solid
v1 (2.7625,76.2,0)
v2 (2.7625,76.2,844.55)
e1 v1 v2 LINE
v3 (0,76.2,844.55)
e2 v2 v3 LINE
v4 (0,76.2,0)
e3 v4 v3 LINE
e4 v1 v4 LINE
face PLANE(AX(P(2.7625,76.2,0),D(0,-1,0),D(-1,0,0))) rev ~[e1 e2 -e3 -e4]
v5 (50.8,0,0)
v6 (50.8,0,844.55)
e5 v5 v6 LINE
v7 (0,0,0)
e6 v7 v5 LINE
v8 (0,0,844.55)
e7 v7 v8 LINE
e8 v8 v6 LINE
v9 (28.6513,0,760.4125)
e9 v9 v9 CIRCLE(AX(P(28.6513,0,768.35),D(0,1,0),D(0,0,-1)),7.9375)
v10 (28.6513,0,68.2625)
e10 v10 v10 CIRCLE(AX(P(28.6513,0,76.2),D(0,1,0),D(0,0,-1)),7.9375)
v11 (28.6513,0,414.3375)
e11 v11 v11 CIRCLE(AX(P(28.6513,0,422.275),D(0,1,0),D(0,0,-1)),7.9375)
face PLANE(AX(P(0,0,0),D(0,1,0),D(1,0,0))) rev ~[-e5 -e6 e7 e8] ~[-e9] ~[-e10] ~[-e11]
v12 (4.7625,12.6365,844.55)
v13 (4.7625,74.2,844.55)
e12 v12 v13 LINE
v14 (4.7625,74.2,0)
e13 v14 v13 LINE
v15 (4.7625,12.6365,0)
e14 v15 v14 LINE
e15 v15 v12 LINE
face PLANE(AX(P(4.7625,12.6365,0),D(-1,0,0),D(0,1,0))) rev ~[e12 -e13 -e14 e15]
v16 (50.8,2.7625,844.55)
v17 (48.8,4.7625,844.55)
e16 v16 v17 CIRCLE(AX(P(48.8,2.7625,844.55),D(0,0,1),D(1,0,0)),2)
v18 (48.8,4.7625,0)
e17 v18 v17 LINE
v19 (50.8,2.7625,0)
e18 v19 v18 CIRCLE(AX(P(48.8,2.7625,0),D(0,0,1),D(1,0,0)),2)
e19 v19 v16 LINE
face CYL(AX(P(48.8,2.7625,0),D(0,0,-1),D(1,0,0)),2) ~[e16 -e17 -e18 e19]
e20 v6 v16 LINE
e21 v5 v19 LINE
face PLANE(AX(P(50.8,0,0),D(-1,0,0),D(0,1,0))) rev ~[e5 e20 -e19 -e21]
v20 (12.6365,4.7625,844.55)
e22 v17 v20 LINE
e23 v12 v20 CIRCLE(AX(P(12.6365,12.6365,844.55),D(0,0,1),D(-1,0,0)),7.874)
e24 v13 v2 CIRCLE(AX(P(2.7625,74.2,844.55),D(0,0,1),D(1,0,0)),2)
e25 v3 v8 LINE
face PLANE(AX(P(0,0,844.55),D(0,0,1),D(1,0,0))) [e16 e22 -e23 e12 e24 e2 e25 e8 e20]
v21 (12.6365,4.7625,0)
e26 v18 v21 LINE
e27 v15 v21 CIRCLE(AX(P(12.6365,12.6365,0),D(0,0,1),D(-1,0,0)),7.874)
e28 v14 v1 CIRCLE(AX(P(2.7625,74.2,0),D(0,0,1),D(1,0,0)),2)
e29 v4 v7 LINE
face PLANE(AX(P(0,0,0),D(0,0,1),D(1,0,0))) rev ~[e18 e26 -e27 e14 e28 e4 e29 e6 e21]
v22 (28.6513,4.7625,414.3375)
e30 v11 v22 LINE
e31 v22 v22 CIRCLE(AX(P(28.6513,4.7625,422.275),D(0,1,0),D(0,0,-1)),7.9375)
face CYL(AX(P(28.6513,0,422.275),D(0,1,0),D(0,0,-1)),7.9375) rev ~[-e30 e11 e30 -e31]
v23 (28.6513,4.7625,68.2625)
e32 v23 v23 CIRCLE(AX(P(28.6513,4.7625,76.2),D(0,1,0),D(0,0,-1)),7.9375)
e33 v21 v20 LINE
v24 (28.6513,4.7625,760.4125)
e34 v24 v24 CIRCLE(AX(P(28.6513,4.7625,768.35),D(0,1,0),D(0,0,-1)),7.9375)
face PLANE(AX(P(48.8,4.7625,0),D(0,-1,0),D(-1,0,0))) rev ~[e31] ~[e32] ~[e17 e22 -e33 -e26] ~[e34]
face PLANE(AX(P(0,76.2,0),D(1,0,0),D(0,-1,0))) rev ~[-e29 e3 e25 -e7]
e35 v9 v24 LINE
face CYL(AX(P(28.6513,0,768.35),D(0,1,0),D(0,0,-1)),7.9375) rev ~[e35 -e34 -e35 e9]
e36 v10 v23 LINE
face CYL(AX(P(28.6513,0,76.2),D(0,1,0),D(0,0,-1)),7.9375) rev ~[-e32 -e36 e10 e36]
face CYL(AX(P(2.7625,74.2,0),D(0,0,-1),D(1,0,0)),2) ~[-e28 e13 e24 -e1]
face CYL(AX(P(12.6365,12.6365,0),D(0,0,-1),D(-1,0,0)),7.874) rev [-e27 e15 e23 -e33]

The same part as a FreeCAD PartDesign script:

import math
import FreeCAD as App
import Part
import Sketcher
Q = App.Units.Quantity

doc = App.newDocument("Part")
params = doc.addObject("Spreadsheet::Sheet", "Params")
for row, (alias, value) in enumerate([
    ("sketch1_width", "2 in"),
    ("sketch1_height", "3 in"),
    ("sketch1_radius", "0.31 in"),
    ("pad1_length", "33.25 in"),
    ("sketch2_diameter", "0.625 in"),
    ("hole_diameter", "0.625 in"),
], start=1):
    params.set(f"A{row}", alias)
    params.set(f"B{row}", "=" + value)
    params.setAlias(f"B{row}", alias)

body = doc.addObject("PartDesign::Body", "Body")

# Sketch on XY plane
sketch1 = body.newObject("Sketcher::SketchObject", "Sketch")
sketch1.AttachmentSupport = (doc.getObject("XY_Plane"), [""])
sketch1.MapMode = "FlatFace"
sketch1.addGeometry([
    Part.LineSegment(App.Vector(2.8, 76.2, 0), App.Vector(0, 76.2, 0)),  # 0
    Part.LineSegment(App.Vector(0, 76.2, 0), App.Vector(0, 0, 0)),  # 1
    Part.LineSegment(App.Vector(0, 0, 0), App.Vector(50.8, 0, 0)),  # 2
    Part.LineSegment(App.Vector(50.8, 0, 0), App.Vector(50.8, 2.8, 0)),  # 3
    Part.ArcOfCircle(Part.Circle(App.Vector(48.8, 2.8, 0), App.Vector(0, 0, 1), 2), math.radians(0), math.radians(90)),  # 4
    Part.LineSegment(App.Vector(48.8, 4.8, 0), App.Vector(12.6, 4.8, 0)),  # 5
    Part.ArcOfCircle(Part.Circle(App.Vector(12.6, 12.6, 0), App.Vector(0, 0, 1), 7.9), math.radians(180), math.radians(270)),  # 6
    Part.LineSegment(App.Vector(4.8, 12.6, 0), App.Vector(4.8, 74.2, 0)),  # 7
    Part.ArcOfCircle(Part.Circle(App.Vector(2.8, 74.2, 0), App.Vector(0, 0, 1), 2), math.radians(0), math.radians(90)),  # 8
], False)
sketch1.addConstraint([
    Sketcher.Constraint("Coincident", 0, 2, 1, 1),
    Sketcher.Constraint("Coincident", 1, 2, 2, 1),
    Sketcher.Constraint("Coincident", 2, 2, 3, 1),
    Sketcher.Constraint("Tangent", 3, 2, 4, 1),
    Sketcher.Constraint("Tangent", 4, 2, 5, 1),
    Sketcher.Constraint("Tangent", 5, 2, 6, 2),
    Sketcher.Constraint("Tangent", 6, 1, 7, 1),
    Sketcher.Constraint("Tangent", 7, 2, 8, 1),
    Sketcher.Constraint("Tangent", 8, 2, 0, 1),
    Sketcher.Constraint("Horizontal", 0),
    Sketcher.Constraint("Vertical", 1),
    Sketcher.Constraint("Horizontal", 2),
    Sketcher.Constraint("Vertical", 3),
    Sketcher.Constraint("Horizontal", 5),
    Sketcher.Constraint("Vertical", 7),
    Sketcher.Constraint("Coincident", 1, 2, -1, 1),
    Sketcher.Constraint("Equal", 4, 8),
    Sketcher.Constraint("Equal", 0, 3),
    Sketcher.Constraint("DistanceX", 2, 1, 2, 2, Q("2 in")),
    Sketcher.Constraint("DistanceY", 1, 2, 1, 1, Q("3 in")),
    Sketcher.Constraint("Radius", 6, Q("0.31 in")),
    Sketcher.Constraint("Radius", 4, 2.0),
    Sketcher.Constraint("DistanceY", -1, 1, 4, 2, Q("0.1875 in")),
])
sketch1.setExpression("Constraints[18]", "Params.sketch1_width")
sketch1.setExpression("Constraints[19]", "Params.sketch1_height")
sketch1.setExpression("Constraints[20]", "Params.sketch1_radius")
pad1 = body.newObject("PartDesign::Pad", "Pad")
pad1.Profile = sketch1
pad1.setExpression("Length", "Params.pad1_length")

# Sketch on XZ plane
sketch2 = body.newObject("Sketcher::SketchObject", "Sketch001")
sketch2.AttachmentSupport = (doc.getObject("XZ_Plane"), [""])
sketch2.MapMode = "FlatFace"
sketch2.addGeometry([
    Part.Circle(App.Vector(29, 768, 0), App.Vector(0, 0, 1), 8),
    Part.Circle(App.Vector(29, 76, 0), App.Vector(0, 0, 1), 8),
    Part.Circle(App.Vector(29, 422, 0), App.Vector(0, 0, 1), 8),
], False)
sketch2.addConstraint([
    Sketcher.Constraint("Equal", 0, 1),
    Sketcher.Constraint("Equal", 1, 2),
    Sketcher.Constraint("Vertical", 0, 3, 1, 3),
    Sketcher.Constraint("Vertical", 1, 3, 2, 3),
    Sketcher.Constraint("Diameter", 0, Q("0.625 in")),
    Sketcher.Constraint("DistanceY", -1, 1, 1, 3, Q("3 in")),
    Sketcher.Constraint("DistanceY", -1, 1, 0, 3, Q("30.25 in")),
    Sketcher.Constraint("DistanceX", -1, 1, 0, 3, Q("1.128 in")),
    Sketcher.Constraint("DistanceY", -1, 1, 2, 3, Q("16.625 in")),
])
sketch2.setExpression("Constraints[4]", "Params.sketch2_diameter")
doc.recompute()
hole = body.newObject("PartDesign::Hole", "Hole")
hole.Profile = sketch2
hole.ThreadType = "None"
hole.setExpression("Diameter", "Params.hole_diameter")
hole.DepthType = "ThroughAll"

doc.recompute()
